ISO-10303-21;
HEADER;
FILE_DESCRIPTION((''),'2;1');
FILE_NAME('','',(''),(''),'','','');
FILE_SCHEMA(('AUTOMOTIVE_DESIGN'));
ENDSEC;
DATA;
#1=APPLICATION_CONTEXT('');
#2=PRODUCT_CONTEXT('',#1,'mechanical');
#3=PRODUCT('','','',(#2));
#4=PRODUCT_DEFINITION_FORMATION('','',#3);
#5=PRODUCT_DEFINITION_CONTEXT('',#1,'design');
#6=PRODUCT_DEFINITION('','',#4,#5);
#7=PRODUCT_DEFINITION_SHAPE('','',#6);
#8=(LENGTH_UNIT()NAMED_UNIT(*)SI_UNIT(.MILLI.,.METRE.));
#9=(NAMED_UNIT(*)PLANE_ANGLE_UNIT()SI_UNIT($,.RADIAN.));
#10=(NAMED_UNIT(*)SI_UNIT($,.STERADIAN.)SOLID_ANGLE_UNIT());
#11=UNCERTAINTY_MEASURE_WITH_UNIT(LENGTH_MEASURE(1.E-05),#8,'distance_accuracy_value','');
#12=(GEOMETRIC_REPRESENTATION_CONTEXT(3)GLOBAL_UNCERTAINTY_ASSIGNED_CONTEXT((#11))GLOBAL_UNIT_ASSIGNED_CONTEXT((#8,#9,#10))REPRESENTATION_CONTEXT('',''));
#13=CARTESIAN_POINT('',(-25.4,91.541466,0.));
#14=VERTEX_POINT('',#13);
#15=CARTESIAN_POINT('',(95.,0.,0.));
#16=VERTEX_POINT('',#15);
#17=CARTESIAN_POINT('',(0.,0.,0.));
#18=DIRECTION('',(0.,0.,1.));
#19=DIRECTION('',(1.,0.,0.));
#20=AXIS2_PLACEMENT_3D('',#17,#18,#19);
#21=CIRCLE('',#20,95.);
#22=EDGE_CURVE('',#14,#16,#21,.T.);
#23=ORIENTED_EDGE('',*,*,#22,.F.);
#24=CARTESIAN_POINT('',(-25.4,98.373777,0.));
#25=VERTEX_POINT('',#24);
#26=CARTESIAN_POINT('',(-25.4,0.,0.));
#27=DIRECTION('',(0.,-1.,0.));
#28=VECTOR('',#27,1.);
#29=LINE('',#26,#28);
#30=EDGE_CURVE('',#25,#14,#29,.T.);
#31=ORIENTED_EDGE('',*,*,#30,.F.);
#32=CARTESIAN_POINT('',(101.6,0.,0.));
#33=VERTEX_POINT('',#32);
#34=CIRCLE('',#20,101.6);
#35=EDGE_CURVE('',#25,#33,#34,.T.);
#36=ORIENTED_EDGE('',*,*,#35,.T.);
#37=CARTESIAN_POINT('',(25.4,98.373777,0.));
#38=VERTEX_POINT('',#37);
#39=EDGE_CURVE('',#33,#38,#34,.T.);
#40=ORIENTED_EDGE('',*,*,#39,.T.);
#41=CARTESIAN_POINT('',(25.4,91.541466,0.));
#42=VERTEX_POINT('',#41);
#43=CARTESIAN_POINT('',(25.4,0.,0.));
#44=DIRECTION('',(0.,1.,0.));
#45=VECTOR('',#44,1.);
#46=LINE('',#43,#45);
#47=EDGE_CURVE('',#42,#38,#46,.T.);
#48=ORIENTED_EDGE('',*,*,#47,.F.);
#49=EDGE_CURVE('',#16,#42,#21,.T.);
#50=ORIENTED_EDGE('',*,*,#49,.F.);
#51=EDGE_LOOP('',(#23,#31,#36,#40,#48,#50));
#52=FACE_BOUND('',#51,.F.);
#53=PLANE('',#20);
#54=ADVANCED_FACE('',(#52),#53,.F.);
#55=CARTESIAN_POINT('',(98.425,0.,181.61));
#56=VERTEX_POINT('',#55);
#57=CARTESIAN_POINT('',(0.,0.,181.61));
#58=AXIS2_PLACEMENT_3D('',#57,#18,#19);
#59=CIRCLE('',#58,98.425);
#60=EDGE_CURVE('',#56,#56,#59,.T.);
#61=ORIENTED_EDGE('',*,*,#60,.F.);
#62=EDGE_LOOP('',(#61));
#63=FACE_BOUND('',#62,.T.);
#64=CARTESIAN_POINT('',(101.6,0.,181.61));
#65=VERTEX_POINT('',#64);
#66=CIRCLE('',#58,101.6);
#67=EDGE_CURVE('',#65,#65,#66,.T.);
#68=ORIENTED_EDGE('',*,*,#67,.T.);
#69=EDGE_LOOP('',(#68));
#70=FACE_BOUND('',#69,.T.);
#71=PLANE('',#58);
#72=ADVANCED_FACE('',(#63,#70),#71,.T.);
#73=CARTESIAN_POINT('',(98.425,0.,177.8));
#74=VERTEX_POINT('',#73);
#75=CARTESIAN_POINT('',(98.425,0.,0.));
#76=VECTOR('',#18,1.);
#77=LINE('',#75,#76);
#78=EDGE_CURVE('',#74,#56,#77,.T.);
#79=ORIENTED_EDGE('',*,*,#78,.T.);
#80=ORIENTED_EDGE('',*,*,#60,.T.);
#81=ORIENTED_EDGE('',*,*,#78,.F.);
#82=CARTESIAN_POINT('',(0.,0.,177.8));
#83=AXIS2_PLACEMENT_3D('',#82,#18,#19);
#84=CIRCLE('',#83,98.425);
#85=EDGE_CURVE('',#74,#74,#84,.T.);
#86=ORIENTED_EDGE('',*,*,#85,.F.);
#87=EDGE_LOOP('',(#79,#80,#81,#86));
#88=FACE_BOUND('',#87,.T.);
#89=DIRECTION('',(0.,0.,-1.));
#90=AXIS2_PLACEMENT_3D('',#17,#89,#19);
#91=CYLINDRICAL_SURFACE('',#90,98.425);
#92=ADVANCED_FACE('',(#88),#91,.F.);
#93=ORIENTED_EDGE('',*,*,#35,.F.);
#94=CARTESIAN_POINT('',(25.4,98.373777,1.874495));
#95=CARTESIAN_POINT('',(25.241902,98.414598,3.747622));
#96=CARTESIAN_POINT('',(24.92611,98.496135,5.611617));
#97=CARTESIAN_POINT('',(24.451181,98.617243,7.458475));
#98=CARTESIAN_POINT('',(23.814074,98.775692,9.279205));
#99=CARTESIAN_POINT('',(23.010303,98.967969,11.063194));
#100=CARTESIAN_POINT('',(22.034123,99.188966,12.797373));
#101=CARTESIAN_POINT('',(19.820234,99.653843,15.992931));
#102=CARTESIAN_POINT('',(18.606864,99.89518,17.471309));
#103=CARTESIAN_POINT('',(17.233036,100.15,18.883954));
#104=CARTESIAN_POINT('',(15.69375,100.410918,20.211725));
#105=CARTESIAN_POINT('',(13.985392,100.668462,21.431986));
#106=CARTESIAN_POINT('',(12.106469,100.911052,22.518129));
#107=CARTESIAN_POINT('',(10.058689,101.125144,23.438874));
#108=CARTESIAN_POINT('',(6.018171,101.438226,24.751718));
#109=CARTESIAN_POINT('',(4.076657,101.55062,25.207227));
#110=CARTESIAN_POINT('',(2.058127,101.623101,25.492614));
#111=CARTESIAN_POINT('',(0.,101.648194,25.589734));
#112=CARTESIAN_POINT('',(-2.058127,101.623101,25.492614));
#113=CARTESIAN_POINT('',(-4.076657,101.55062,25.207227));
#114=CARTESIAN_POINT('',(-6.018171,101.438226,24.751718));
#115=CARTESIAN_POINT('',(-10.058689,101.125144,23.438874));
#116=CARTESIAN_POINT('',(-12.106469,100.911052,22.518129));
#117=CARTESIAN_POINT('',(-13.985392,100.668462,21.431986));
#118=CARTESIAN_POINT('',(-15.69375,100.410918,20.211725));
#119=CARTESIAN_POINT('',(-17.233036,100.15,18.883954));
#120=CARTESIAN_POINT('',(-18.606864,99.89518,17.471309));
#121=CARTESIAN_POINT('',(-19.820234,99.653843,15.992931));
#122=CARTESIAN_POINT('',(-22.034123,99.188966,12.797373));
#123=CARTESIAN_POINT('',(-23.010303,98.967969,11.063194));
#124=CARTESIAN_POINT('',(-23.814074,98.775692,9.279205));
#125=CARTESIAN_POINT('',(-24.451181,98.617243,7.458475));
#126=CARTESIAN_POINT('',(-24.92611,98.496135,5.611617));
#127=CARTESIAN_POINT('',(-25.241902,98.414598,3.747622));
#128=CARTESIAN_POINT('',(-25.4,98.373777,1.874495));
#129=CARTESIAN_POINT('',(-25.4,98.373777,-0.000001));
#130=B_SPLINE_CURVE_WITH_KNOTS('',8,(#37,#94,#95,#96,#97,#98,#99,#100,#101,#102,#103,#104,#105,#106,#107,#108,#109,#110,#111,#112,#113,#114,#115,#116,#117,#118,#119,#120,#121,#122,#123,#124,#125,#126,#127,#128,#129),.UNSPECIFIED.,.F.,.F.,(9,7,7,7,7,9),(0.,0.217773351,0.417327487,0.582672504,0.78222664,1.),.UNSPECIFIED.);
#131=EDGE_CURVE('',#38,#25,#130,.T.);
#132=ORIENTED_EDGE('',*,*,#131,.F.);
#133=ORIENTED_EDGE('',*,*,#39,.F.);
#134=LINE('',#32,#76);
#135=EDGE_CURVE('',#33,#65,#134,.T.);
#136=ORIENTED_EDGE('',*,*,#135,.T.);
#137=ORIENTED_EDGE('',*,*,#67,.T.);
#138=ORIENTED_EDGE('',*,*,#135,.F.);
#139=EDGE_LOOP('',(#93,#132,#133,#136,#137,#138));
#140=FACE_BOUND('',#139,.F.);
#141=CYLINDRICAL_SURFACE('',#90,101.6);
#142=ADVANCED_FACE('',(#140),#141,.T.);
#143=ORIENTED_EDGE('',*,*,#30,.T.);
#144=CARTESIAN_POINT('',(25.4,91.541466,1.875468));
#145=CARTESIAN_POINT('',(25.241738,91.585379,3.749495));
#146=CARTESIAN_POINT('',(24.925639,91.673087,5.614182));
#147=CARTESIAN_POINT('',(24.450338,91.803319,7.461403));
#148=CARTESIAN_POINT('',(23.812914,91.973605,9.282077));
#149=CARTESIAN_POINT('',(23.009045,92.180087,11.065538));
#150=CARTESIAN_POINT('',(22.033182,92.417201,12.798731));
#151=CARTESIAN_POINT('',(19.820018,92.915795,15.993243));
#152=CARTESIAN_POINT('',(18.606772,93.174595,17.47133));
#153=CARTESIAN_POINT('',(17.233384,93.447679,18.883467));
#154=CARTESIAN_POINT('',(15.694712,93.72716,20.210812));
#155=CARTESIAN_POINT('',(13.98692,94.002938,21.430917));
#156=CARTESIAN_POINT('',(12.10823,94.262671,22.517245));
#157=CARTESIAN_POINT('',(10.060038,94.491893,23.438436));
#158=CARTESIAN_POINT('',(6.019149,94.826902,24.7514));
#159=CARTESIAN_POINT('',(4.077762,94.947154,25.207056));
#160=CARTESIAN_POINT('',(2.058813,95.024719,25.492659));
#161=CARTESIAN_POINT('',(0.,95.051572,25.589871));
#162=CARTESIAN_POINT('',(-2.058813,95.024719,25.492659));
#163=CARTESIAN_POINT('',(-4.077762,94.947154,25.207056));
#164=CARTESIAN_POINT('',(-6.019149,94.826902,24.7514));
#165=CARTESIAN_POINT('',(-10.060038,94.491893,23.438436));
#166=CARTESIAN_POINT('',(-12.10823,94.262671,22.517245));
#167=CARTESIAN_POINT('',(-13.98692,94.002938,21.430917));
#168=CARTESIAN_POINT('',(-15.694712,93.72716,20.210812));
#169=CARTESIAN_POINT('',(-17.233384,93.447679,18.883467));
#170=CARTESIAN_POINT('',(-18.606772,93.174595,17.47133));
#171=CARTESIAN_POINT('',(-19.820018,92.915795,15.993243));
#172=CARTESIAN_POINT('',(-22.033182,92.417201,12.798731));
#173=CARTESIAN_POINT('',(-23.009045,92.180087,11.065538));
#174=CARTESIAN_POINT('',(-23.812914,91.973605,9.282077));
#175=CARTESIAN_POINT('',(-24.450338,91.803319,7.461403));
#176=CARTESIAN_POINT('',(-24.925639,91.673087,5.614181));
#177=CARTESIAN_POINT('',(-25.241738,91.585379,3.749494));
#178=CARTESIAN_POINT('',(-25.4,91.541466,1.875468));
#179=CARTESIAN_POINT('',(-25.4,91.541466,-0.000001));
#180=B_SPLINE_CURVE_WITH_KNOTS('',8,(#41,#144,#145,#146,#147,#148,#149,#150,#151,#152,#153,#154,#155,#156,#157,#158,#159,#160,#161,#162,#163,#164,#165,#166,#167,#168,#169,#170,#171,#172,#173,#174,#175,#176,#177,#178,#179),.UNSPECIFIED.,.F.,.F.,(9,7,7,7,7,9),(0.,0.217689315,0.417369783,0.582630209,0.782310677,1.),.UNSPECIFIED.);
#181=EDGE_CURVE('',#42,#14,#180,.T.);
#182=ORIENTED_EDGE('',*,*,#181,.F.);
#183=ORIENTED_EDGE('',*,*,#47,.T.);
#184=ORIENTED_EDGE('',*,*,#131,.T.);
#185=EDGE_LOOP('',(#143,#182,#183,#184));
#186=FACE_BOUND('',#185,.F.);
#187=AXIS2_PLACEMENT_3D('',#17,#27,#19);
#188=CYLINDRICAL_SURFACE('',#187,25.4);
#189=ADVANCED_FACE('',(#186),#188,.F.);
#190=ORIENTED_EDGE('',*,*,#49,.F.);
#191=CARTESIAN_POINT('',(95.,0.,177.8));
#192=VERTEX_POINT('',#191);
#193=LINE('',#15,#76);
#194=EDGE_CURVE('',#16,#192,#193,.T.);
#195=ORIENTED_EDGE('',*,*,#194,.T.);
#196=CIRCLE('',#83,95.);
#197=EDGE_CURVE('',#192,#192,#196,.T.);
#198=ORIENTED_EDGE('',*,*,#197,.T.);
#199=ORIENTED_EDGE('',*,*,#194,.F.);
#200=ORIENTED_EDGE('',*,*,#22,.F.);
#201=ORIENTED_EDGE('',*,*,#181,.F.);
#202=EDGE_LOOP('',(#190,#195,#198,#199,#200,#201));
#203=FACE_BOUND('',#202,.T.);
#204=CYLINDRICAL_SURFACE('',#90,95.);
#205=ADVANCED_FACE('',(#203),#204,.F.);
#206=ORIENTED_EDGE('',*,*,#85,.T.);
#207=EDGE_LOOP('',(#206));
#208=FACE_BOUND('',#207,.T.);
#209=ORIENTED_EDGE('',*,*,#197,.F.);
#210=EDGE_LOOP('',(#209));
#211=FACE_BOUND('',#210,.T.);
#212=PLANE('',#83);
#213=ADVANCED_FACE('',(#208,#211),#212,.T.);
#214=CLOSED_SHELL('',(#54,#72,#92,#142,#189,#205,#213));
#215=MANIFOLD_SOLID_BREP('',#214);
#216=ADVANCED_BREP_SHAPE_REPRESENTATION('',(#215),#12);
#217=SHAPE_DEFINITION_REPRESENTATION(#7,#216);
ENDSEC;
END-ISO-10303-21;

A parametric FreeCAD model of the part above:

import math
import FreeCAD as App
import Part
import Sketcher
from FreeCAD import Vector
Q = App.Units.Quantity

doc = App.newDocument("Part")
body = doc.addObject("PartDesign::Body", "Body")

# Sketch on XY plane
sketch1 = doc.addObject("Sketcher::SketchObject", "Sketch")
body.addObject(sketch1)
sketch1.AttachmentSupport = (doc.XY_Plane, [""])
sketch1.MapMode = "FlatFace"
sketch1.addGeometry([
    Part.Circle(Vector(0, 0, 0), Vector(0, 0, 1), 101.6),
    Part.Circle(Vector(0, 0, 0), Vector(0, 0, 1), 98.425),
], False)
sketch1.addConstraint([
    Sketcher.Constraint("Coincident", 0, 3, -1, 1),
    Sketcher.Constraint("Coincident", 1, 3, -1, 1),
    Sketcher.Constraint("Diameter", 0, Q("8 in")),
    Sketcher.Constraint("Diameter", 1, Q("7.75 in")),
])
pad1 = doc.addObject("PartDesign::Pad", "Pad")
body.addObject(pad1)
pad1.Profile = sketch1
pad1.Length = Q("7.15 in")

# Sketch on XY plane
sketch2 = doc.addObject("Sketcher::SketchObject", "Sketch001")
body.addObject(sketch2)
sketch2.AttachmentSupport = (doc.XY_Plane, [""])
sketch2.MapMode = "FlatFace"
sketch2.addGeometry([
    Part.Circle(Vector(0, 0, 0), Vector(0, 0, 1), 98.425),
    Part.Circle(Vector(0, 0, 0), Vector(0, 0, 1), 95),
], False)
sketch2.addConstraint([
    Sketcher.Constraint("Coincident", 0, 3, -1, 1),
    Sketcher.Constraint("Coincident", 1, 3, -1, 1),
    Sketcher.Constraint("Diameter", 0, Q("7.75 in")),
    Sketcher.Constraint("Diameter", 1, 190.0),
])
pad2 = doc.addObject("PartDesign::Pad", "Pad001")
body.addObject(pad2)
pad2.Profile = sketch2
pad2.Length = Q("7 in")

# Sketch on XZ plane
sketch3 = doc.addObject("Sketcher::SketchObject", "Sketch002")
body.addObject(sketch3)
sketch3.AttachmentSupport = (doc.XZ_Plane, [""])
sketch3.MapMode = "FlatFace"
sketch3.addGeometry([
    Part.ArcOfCircle(Part.Circle(Vector(0, 0, 0), Vector(0, 0, 1), 25.4), math.radians(-90), math.radians(0)),
    Part.ArcOfCircle(Part.Circle(Vector(0, 0, 0), Vector(0, 0, 1), 25.4), math.radians(0), math.radians(270)),
], False)
sketch3.addConstraint([
    Sketcher.Constraint("Tangent", 0, 1, 1, 2),
    Sketcher.Constraint("Coincident", 1, 1, 0, 2),
    Sketcher.Constraint("Coincident", 0, 3, -1, 1),
    Sketcher.Constraint("PointOnObject", 0, 1, -2),
    Sketcher.Constraint("PointOnObject", 1, 1, -1),
    Sketcher.Constraint("Radius", 0, Q("1 in")),
])
pocket1 = doc.addObject("PartDesign::Pocket", "Pocket")
body.addObject(pocket1)
pocket1.Profile = sketch3
pocket1.Type = "ThroughAll"

doc.recompute()
